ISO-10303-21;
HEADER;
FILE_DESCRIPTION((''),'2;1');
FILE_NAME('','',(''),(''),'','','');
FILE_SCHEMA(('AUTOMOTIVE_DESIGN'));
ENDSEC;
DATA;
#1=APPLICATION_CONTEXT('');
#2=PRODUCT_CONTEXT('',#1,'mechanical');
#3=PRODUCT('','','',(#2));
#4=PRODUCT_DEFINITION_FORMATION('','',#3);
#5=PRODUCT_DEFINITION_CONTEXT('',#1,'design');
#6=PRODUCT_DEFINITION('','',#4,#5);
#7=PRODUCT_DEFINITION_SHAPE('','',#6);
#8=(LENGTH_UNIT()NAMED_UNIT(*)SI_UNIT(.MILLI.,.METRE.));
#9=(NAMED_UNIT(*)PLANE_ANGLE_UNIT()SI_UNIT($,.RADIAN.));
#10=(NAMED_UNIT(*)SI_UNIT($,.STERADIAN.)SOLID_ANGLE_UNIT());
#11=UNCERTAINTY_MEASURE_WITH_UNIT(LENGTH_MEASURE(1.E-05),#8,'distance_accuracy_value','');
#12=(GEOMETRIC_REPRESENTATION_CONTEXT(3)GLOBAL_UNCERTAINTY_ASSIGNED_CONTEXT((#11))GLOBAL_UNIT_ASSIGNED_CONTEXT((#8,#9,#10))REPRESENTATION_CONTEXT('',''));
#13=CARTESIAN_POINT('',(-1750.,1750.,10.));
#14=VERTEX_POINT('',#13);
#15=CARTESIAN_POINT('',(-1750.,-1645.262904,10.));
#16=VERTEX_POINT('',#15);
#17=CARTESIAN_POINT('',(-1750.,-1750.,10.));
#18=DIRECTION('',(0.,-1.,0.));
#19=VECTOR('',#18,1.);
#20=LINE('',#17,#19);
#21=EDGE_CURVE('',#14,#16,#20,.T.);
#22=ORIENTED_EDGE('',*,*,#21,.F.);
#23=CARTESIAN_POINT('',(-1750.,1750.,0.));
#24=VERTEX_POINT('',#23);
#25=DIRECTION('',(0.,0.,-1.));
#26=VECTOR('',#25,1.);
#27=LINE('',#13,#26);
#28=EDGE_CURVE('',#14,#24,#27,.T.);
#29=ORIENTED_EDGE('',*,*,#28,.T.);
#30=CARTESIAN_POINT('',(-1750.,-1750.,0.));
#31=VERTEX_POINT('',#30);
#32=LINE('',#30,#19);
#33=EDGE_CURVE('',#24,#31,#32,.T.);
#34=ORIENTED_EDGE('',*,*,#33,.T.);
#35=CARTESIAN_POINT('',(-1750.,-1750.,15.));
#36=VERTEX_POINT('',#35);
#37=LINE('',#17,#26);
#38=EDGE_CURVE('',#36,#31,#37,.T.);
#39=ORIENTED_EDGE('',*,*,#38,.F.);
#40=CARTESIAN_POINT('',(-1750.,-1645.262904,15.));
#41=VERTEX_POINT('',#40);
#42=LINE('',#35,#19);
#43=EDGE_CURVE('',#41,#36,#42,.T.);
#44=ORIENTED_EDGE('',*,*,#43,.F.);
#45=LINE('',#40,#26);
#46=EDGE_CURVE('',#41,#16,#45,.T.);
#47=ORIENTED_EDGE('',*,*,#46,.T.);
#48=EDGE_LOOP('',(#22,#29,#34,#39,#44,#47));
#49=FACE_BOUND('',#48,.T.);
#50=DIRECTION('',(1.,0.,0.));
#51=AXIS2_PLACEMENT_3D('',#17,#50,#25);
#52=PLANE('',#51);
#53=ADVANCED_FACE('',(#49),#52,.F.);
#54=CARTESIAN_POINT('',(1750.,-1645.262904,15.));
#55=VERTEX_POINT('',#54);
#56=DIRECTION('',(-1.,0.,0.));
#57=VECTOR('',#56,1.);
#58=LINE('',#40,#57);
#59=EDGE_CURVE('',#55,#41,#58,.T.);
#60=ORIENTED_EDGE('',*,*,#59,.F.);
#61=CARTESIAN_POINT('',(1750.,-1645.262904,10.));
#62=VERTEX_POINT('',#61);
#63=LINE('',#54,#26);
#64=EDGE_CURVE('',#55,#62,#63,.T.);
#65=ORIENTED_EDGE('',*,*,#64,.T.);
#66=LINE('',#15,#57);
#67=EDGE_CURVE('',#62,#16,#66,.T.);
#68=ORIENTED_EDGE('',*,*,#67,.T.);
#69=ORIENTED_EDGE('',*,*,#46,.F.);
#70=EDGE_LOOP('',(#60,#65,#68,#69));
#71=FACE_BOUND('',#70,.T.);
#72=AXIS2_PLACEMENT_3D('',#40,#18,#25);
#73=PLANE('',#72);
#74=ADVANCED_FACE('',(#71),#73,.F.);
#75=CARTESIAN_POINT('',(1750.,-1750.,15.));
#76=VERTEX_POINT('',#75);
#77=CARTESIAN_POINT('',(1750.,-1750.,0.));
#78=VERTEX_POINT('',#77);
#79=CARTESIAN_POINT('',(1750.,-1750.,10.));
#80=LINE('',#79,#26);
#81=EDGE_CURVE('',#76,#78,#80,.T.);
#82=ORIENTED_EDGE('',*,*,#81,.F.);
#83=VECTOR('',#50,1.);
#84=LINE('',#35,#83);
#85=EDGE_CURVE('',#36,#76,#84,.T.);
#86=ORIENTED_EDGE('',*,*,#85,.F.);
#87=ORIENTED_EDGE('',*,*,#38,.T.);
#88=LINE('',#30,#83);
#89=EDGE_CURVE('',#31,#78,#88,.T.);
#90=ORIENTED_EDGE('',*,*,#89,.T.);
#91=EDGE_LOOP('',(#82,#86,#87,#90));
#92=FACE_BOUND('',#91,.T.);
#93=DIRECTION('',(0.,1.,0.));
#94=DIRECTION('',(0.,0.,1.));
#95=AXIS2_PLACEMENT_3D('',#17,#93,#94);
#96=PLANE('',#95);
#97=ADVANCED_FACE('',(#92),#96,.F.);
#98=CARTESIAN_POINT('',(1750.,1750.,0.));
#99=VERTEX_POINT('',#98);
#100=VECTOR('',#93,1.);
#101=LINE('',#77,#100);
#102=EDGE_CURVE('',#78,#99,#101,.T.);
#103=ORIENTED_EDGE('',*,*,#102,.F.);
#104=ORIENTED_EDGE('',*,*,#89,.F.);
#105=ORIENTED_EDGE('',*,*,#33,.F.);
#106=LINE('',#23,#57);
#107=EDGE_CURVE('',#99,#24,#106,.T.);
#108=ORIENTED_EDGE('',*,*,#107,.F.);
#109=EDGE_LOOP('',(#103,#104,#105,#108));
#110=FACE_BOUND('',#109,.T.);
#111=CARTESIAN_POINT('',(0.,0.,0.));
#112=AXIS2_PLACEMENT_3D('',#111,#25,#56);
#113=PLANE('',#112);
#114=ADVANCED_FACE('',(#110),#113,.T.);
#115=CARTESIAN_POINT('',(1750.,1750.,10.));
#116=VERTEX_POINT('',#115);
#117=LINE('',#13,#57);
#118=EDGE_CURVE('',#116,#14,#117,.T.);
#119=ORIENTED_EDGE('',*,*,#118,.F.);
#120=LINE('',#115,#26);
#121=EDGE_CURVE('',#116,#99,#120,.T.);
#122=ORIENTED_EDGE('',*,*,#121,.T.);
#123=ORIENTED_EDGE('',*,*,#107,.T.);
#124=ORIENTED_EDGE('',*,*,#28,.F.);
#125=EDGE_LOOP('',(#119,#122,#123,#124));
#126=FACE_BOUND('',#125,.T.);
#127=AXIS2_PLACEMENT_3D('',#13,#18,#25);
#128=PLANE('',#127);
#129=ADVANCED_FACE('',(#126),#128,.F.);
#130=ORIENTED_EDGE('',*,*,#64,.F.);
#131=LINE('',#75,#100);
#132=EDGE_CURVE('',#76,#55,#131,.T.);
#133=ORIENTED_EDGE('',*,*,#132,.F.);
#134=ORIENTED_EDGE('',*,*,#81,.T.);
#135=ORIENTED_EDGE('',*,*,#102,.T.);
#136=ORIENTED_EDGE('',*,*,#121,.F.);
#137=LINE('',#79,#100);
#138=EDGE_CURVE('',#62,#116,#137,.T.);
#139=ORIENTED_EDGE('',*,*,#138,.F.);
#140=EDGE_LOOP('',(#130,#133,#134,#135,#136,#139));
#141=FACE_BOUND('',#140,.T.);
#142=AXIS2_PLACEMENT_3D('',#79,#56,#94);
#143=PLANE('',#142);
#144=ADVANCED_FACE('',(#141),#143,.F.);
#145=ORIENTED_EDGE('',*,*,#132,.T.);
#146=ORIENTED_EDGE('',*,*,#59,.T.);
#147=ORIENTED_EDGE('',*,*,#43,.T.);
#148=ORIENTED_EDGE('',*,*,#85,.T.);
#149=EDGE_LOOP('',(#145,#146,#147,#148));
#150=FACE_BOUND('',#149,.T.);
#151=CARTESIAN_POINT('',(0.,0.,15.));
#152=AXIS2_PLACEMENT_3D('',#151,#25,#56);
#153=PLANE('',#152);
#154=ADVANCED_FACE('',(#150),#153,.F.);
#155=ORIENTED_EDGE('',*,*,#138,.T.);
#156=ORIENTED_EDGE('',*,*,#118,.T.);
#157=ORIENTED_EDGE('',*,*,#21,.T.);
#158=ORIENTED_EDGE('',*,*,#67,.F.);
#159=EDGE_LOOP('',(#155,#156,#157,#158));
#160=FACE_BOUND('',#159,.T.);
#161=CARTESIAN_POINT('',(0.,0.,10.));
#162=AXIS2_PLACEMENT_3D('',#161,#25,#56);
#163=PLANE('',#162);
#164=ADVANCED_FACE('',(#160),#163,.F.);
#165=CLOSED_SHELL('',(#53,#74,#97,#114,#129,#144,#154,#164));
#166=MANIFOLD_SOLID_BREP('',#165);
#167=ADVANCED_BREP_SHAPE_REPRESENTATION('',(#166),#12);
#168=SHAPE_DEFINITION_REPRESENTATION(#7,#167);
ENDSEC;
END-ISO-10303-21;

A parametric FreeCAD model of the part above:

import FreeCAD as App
import Part
import Sketcher


def add_polygon(sketch, points):
    """Adds a closed chain of lines whose ends are joined by coincident constraints."""
    first, n = sketch.GeometryCount, len(points)
    for a, b in zip(points, points[1:] + points[:1]):
        sketch.addGeometry(Part.LineSegment(App.Vector(*a, 0), App.Vector(*b, 0)), False)
    for i in range(n):
        sketch.addConstraint(Sketcher.Constraint("Coincident", first + i, 2, first + (i + 1) % n, 1))

doc = App.newDocument("Part")
params = doc.addObject("Spreadsheet::Sheet", "Params")
for row, (alias, value) in enumerate([
    ("sketch1_width", "3500 mm"),
    ("pad1_length", "10 mm"),
    ("sketch2_width", "3500 mm"),
    ("pad2_length", "5 mm"),
], start=1):
    params.set(f"A{row}", alias)
    params.set(f"B{row}", "=" + value)
    params.setAlias(f"B{row}", alias)

body = doc.addObject("PartDesign::Body", "Body")

# Sketch on XY plane
sketch1 = body.newObject("Sketcher::SketchObject", "Sketch")
sketch1.AttachmentSupport = (doc.getObject("XY_Plane"), [""])
sketch1.MapMode = "FlatFace"
add_polygon(sketch1, [(-1750, 1750), (-1750, -1750), (1750, -1750), (1750, 1750)])  # lines 0-3
sketch1.addConstraint(Sketcher.Constraint("Vertical", 0))
sketch1.addConstraint(Sketcher.Constraint("Horizontal", 1))
sketch1.addConstraint(Sketcher.Constraint("Vertical", 2))
sketch1.addConstraint(Sketcher.Constraint("Horizontal", 3))
sketch1.addConstraint(Sketcher.Constraint("Symmetric", 0, 2, 2, 2, -1, 1))
sketch1.addConstraint(Sketcher.Constraint("Equal", 3, 0))
sketch1.addConstraint(Sketcher.Constraint("DistanceX", 1, 1, 1, 2, 3500.0))
sketch1.setExpression("Constraints[10]", "Params.sketch1_width")
pad1 = body.newObject("PartDesign::Pad", "Pad")
pad1.Profile = sketch1
pad1.setExpression("Length", "Params.pad1_length")

# Sketch on XY plane
sketch2 = body.newObject("Sketcher::SketchObject", "Sketch001")
sketch2.AttachmentSupport = (doc.getObject("XY_Plane"), [""])
sketch2.MapMode = "FlatFace"
sketch2.AttachmentOffset = App.Placement(App.Vector(0, 0, 10), App.Rotation())
add_polygon(sketch2, [(-1750, -1645), (-1750, -1750), (1750, -1750), (1750, -1645)])  # lines 0-3
sketch2.addConstraint(Sketcher.Constraint("Vertical", 0))
sketch2.addConstraint(Sketcher.Constraint("Horizontal", 1))
sketch2.addConstraint(Sketcher.Constraint("Vertical", 2))
sketch2.addConstraint(Sketcher.Constraint("Horizontal", 3))
sketch2.addConstraint(Sketcher.Constraint("DistanceX", 1, 1, 1, 2, 3500.0))
sketch2.addConstraint(Sketcher.Constraint("DistanceX", 0, 2, -1, 1, 1750.0))
sketch2.addConstraint(Sketcher.Constraint("DistanceY", 0, 2, -1, 1, 1750.0))
sketch2.addConstraint(Sketcher.Constraint("DistanceY", 0, 2, 0, 1, 104.737096))
sketch2.setExpression("Constraints[8]", "Params.sketch2_width")
pad2 = body.newObject("PartDesign::Pad", "Pad001")
pad2.Profile = sketch2
pad2.setExpression("Length", "Params.pad2_length")

doc.recompute()
